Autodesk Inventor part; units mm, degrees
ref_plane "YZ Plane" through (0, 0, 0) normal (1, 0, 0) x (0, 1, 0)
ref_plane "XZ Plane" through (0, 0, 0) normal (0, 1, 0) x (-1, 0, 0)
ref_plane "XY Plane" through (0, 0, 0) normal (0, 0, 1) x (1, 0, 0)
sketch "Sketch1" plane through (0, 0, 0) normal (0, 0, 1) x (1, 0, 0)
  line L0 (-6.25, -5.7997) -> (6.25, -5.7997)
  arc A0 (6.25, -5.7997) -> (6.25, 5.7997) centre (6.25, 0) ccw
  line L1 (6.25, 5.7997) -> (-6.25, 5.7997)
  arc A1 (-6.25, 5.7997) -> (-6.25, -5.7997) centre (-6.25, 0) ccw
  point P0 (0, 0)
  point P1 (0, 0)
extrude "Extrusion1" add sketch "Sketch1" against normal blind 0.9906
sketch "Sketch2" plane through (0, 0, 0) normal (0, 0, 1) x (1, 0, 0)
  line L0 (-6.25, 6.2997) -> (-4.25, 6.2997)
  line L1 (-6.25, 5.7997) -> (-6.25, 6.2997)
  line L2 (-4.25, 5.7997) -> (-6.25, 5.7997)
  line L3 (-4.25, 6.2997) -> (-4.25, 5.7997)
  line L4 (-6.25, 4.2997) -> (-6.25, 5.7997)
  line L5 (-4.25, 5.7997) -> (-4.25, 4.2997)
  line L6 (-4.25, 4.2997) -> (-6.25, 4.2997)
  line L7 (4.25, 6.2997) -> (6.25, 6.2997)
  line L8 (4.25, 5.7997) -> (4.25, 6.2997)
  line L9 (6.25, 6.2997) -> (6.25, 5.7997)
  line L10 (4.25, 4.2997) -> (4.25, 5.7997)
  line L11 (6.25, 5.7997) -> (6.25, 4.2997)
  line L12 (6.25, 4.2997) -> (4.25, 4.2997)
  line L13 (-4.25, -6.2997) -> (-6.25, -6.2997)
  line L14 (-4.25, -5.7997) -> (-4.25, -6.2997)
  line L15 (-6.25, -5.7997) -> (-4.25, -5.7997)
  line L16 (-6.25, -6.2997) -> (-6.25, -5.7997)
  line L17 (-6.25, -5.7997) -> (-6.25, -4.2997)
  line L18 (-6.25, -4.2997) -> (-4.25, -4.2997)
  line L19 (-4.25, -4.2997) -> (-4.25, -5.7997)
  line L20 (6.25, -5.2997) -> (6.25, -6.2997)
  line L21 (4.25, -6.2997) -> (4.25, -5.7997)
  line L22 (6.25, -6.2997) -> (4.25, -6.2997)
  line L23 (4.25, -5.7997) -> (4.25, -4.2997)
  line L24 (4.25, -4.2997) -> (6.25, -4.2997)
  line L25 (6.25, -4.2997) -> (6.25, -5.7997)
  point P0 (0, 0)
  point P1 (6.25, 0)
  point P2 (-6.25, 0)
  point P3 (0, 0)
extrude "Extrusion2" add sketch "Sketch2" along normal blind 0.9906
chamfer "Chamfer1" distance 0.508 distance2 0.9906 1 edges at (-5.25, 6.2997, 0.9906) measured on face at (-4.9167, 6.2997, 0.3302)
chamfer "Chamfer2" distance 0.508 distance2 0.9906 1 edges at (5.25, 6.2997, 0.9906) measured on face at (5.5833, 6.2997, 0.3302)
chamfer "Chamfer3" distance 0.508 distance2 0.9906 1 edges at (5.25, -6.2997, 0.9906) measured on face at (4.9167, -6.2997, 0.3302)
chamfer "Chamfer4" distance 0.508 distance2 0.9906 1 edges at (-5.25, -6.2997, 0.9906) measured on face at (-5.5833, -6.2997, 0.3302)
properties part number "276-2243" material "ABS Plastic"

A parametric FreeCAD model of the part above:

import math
import FreeCAD as App
import Part
import Sketcher
Q = App.Units.Quantity


def edges_at(feature, points):
    """Names of the edges that pass closest to the given points."""
    edges = feature.Shape.Edges
    near = lambda p: min(range(len(edges)), key=lambda i: edges[i].distToShape(Part.Vertex(*p))[0])
    return sorted({f"Edge{near(p) + 1}" for p in points})

doc = App.newDocument("Part")
body = doc.addObject("PartDesign::Body", "Body")

# Sketch on XY plane
sketch1 = doc.addObject("Sketcher::SketchObject", "Sketch")
body.addObject(sketch1)
sketch1.AttachmentSupport = (doc.XY_Plane, [""])
sketch1.MapMode = "FlatFace"
sketch1.addGeometry([
    Part.ArcOfCircle(Part.Circle(App.Vector(-6, 0, 0), App.Vector(0, 0, 1), 6), math.radians(90), math.radians(270)),
    Part.LineSegment(App.Vector(-6, -6, 0), App.Vector(6, -6, 0)),
    Part.ArcOfCircle(Part.Circle(App.Vector(6, 0, 0), App.Vector(0, 0, 1), 6), math.radians(-90), math.radians(90)),
    Part.LineSegment(App.Vector(6, 6, 0), App.Vector(-6, 6, 0)),
], False)
sketch1.addConstraint([
    Sketcher.Constraint("Tangent", 0, 2, 1, 1),
    Sketcher.Constraint("Tangent", 1, 2, 2, 1),
    Sketcher.Constraint("Tangent", 2, 2, 3, 1),
    Sketcher.Constraint("Tangent", 3, 2, 0, 1),
    Sketcher.Constraint("Horizontal", 1),
    Sketcher.Constraint("Horizontal", 3),
    Sketcher.Constraint("Symmetric", 0, 3, 2, 3, -1, 1),
    Sketcher.Constraint("DistanceX", 1, 1, 1, 2, Q("12.5 mm")),
    Sketcher.Constraint("Radius", 0, Q("5.7997 mm")),
])
pad1 = doc.addObject("PartDesign::Pad", "Pad")
body.addObject(pad1)
pad1.Profile = sketch1
pad1.Length = 0.9906
pad1.Reversed = True

# Sketch on XY plane
sketch2 = doc.addObject("Sketcher::SketchObject", "Sketch001")
body.addObject(sketch2)
sketch2.AttachmentSupport = (doc.XY_Plane, [""])
sketch2.MapMode = "FlatFace"
sketch2.addGeometry([
    Part.LineSegment(App.Vector(-4.2, 6.3, 0), App.Vector(-6.2, 6.3, 0)),  # 0
    Part.LineSegment(App.Vector(-6.2, 6.3, 0), App.Vector(-6.2, 4.3, 0)),  # 1
    Part.LineSegment(App.Vector(-6.2, 4.3, 0), App.Vector(-4.2, 4.3, 0)),  # 2
    Part.LineSegment(App.Vector(-4.2, 4.3, 0), App.Vector(-4.2, 6.3, 0)),  # 3
    Part.LineSegment(App.Vector(6.2, 6.3, 0), App.Vector(4.2, 6.3, 0)),  # 4
    Part.LineSegment(App.Vector(4.2, 6.3, 0), App.Vector(4.2, 4.3, 0)),  # 5
    Part.LineSegment(App.Vector(4.2, 4.3, 0), App.Vector(6.2, 4.3, 0)),  # 6
    Part.LineSegment(App.Vector(6.2, 4.3, 0), App.Vector(6.2, 6.3, 0)),  # 7
    Part.LineSegment(App.Vector(-6.2, -6.3, 0), App.Vector(-4.2, -6.3, 0)),  # 8
    Part.LineSegment(App.Vector(-4.2, -6.3, 0), App.Vector(-4.2, -4.3, 0)),  # 9
    Part.LineSegment(App.Vector(-4.2, -4.3, 0), App.Vector(-6.2, -4.3, 0)),  # 10
    Part.LineSegment(App.Vector(-6.2, -4.3, 0), App.Vector(-6.2, -6.3, 0)),  # 11
    Part.LineSegment(App.Vector(6.2, -6.3, 0), App.Vector(6.2, -4.3, 0)),  # 12
    Part.LineSegment(App.Vector(6.2, -4.3, 0), App.Vector(4.2, -4.3, 0)),  # 13
    Part.LineSegment(App.Vector(4.2, -4.3, 0), App.Vector(4.2, -6.3, 0)),  # 14
    Part.LineSegment(App.Vector(4.2, -6.3, 0), App.Vector(6.2, -6.3, 0)),  # 15
], False)
sketch2.addConstraint([
    Sketcher.Constraint("Coincident", 0, 2, 1, 1),
    Sketcher.Constraint("Coincident", 1, 2, 2, 1),
    Sketcher.Constraint("Coincident", 2, 2, 3, 1),
    Sketcher.Constraint("Coincident", 3, 2, 0, 1),
    Sketcher.Constraint("Coincident", 4, 2, 5, 1),
    Sketcher.Constraint("Coincident", 5, 2, 6, 1),
    Sketcher.Constraint("Coincident", 6, 2, 7, 1),
    Sketcher.Constraint("Coincident", 7, 2, 4, 1),
    Sketcher.Constraint("Coincident", 8, 2, 9, 1),
    Sketcher.Constraint("Coincident", 9, 2, 10, 1),
    Sketcher.Constraint("Coincident", 10, 2, 11, 1),
    Sketcher.Constraint("Coincident", 11, 2, 8, 1),
    Sketcher.Constraint("Coincident", 12, 2, 13, 1),
    Sketcher.Constraint("Coincident", 13, 2, 14, 1),
    Sketcher.Constraint("Coincident", 14, 2, 15, 1),
    Sketcher.Constraint("Coincident", 15, 2, 12, 1),
    Sketcher.Constraint("Horizontal", 0),
    Sketcher.Constraint("Vertical", 1),
    Sketcher.Constraint("Horizontal", 2),
    Sketcher.Constraint("Vertical", 3),
    Sketcher.Constraint("Horizontal", 4),
    Sketcher.Constraint("Vertical", 5),
    Sketcher.Constraint("Horizontal", 6),
    Sketcher.Constraint("Vertical", 7),
    Sketcher.Constraint("Horizontal", 8),
    Sketcher.Constraint("Vertical", 9),
    Sketcher.Constraint("Horizontal", 10),
    Sketcher.Constraint("Vertical", 11),
    Sketcher.Constraint("Vertical", 12),
    Sketcher.Constraint("Horizontal", 13),
    Sketcher.Constraint("Vertical", 14),
    Sketcher.Constraint("Horizontal", 15),
    Sketcher.Constraint("Symmetric", 4, 2, 8, 2, -1, 1),
    Sketcher.Constraint("Symmetric", 6, 2, 10, 2, -1, 1),
    Sketcher.Constraint("Symmetric", 1, 2, 12, 2, -1, 1),
    Sketcher.Constraint("Symmetric", 3, 2, 14, 2, -1, 1),
    Sketcher.Constraint("Symmetric", 3, 2, 4, 2, -2),
    Sketcher.Constraint("Symmetric", 1, 2, 6, 2, -2),
    Sketcher.Constraint("Equal", 15, 1),
    Sketcher.Constraint("DistanceX", 0, 2, 0, 1, Q("2 mm")),
    Sketcher.Constraint("DistanceX", 3, 2, 4, 2, Q("8.5 mm")),
    Sketcher.Constraint("DistanceY", -1, 1, 0, 2, Q("6.2997 mm")),
])
pad2 = doc.addObject("PartDesign::Pad", "Pad001")
body.addObject(pad2)
pad2.Profile = sketch2
pad2.Length = 0.9906
doc.recompute()

chamfer = doc.addObject("PartDesign::Chamfer", "Chamfer")
body.addObject(chamfer)
chamfer.Base = (pad2, edges_at(pad2, [(-5.25, 6.3, 0.991)]))
chamfer.ChamferType = "Two distances"
chamfer.Size = 0.508
chamfer.Size2 = 0.9906
doc.recompute()

chamfer2 = doc.addObject("PartDesign::Chamfer", "Chamfer001")
body.addObject(chamfer2)
chamfer2.Base = (chamfer, edges_at(chamfer, [(5.25, 6.3, 0.991)]))
chamfer2.ChamferType = "Two distances"
chamfer2.Size = 0.508
chamfer2.Size2 = 0.9906
doc.recompute()

chamfer3 = doc.addObject("PartDesign::Chamfer", "Chamfer002")
body.addObject(chamfer3)
chamfer3.Base = (chamfer2, edges_at(chamfer2, [(5.25, -6.3, 0.991)]))
chamfer3.ChamferType = "Two distances"
chamfer3.Size = 0.508
chamfer3.Size2 = 0.9906
doc.recompute()

chamfer4 = doc.addObject("PartDesign::Chamfer", "Chamfer003")
body.addObject(chamfer4)
chamfer4.Base = (chamfer3, edges_at(chamfer3, [(-5.25, -6.3, 0.991)]))
chamfer4.ChamferType = "Two distances"
chamfer4.Size = 0.508
chamfer4.Size2 = 0.9906

doc.recompute()
